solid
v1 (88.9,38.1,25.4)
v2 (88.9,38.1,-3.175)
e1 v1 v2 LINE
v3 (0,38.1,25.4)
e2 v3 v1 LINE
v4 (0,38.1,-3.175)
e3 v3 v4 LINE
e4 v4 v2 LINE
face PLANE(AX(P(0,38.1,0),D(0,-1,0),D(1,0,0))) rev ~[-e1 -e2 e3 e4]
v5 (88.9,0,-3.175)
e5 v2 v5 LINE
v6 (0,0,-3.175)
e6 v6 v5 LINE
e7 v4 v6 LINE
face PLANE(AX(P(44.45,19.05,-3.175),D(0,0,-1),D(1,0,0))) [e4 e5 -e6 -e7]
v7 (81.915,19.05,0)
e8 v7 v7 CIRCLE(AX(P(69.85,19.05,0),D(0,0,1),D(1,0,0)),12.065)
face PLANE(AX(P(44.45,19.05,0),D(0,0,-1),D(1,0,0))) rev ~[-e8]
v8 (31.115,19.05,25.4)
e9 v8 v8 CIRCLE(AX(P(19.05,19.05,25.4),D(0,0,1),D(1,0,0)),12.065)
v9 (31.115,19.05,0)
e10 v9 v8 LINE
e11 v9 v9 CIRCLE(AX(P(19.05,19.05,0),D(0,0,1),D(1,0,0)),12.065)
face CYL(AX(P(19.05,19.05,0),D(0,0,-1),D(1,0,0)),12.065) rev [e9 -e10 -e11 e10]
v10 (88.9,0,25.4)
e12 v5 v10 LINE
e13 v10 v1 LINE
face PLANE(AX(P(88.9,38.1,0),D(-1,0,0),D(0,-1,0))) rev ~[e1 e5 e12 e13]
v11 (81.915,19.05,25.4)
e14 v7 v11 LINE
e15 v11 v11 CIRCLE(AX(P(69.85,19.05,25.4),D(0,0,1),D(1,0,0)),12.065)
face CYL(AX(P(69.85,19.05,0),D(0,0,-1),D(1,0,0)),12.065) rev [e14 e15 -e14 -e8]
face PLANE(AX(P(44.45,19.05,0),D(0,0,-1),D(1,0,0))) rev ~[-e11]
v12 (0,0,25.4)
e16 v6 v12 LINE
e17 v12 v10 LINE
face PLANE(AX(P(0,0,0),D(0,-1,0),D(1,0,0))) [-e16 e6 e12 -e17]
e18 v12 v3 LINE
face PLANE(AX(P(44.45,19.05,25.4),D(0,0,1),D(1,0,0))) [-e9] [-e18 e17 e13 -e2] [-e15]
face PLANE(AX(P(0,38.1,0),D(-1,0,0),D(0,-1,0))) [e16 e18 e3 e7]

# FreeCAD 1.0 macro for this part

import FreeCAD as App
import Part
import Sketcher
Q = App.Units.Quantity


def add_polygon(sketch, points):
    """Adds a closed chain of lines whose ends are joined by coincident constraints."""
    first, n = sketch.GeometryCount, len(points)
    for a, b in zip(points, points[1:] + points[:1]):
        sketch.addGeometry(Part.LineSegment(App.Vector(*a, 0), App.Vector(*b, 0)), False)
    for i in range(n):
        sketch.addConstraint(Sketcher.Constraint("Coincident", first + i, 2, first + (i + 1) % n, 1))

doc = App.newDocument("Part")
body = doc.addObject("PartDesign::Body", "Body")

# Sketch on XY plane
sketch1 = doc.addObject("Sketcher::SketchObject", "Sketch")
body.addObject(sketch1)
sketch1.AttachmentSupport = (doc.XY_Plane, [""])
sketch1.MapMode = "FlatFace"
add_polygon(sketch1, [(0, 38), (0, 0), (89, 0), (89, 38)])  # lines 0-3
sketch1.addGeometry(Part.Circle(App.Vector(19, 19, 0), App.Vector(0, 0, 1), 12), False)  # 4
sketch1.addGeometry(Part.Circle(App.Vector(70, 19, 0), App.Vector(0, 0, 1), 12), False)  # 5
sketch1.addConstraint(Sketcher.Constraint("Vertical", 0))
sketch1.addConstraint(Sketcher.Constraint("Horizontal", 1))
sketch1.addConstraint(Sketcher.Constraint("Vertical", 2))
sketch1.addConstraint(Sketcher.Constraint("Horizontal", 3))
sketch1.addConstraint(Sketcher.Constraint("Coincident", 0, 2, -1, 1))
sketch1.addConstraint(Sketcher.Constraint("Equal", 4, 5))
sketch1.addConstraint(Sketcher.Constraint("Horizontal", 4, 3, 5, 3))
sketch1.addConstraint(Sketcher.Constraint("Diameter", 4, Q("0.95 in")))
sketch1.addConstraint(Sketcher.Constraint("DistanceX", 1, 1, 1, 2, Q("3.5 in")))
sketch1.addConstraint(Sketcher.Constraint("DistanceY", 0, 2, 0, 1, Q("1.5 in")))
sketch1.addConstraint(Sketcher.Constraint("DistanceX", 4, 3, 5, 3, Q("2 in")))
sketch1.addConstraint(Sketcher.Constraint("DistanceX", -1, 1, 4, 3, Q("0.75 in")))
sketch1.addConstraint(Sketcher.Constraint("DistanceY", -1, 1, 4, 3, Q("0.75 in")))
pad1 = doc.addObject("PartDesign::Pad", "Pad")
body.addObject(pad1)
pad1.Profile = sketch1
pad1.Length = Q("1 in")

# Sketch on XY plane
sketch2 = doc.addObject("Sketcher::SketchObject", "Sketch001")
body.addObject(sketch2)
sketch2.AttachmentSupport = (doc.XY_Plane, [""])
sketch2.MapMode = "FlatFace"
add_polygon(sketch2, [(0, 0), (0, 38), (89, 38), (89, 0)])  # lines 0-3
sketch2.addConstraint(Sketcher.Constraint("Vertical", 0))
sketch2.addConstraint(Sketcher.Constraint("Horizontal", 1))
sketch2.addConstraint(Sketcher.Constraint("Vertical", 2))
sketch2.addConstraint(Sketcher.Constraint("Horizontal", 3))
sketch2.addConstraint(Sketcher.Constraint("Coincident", 3, 2, -1, 1))
sketch2.addConstraint(Sketcher.Constraint("DistanceX", 1, 1, 1, 2, Q("3.5 in")))
sketch2.addConstraint(Sketcher.Constraint("DistanceY", 0, 1, 0, 2, Q("1.5 in")))
pad2 = doc.addObject("PartDesign::Pad", "Pad001")
body.addObject(pad2)
pad2.Profile = sketch2
pad2.Length = Q("0.125 in")
pad2.Reversed = True

doc.recompute()
